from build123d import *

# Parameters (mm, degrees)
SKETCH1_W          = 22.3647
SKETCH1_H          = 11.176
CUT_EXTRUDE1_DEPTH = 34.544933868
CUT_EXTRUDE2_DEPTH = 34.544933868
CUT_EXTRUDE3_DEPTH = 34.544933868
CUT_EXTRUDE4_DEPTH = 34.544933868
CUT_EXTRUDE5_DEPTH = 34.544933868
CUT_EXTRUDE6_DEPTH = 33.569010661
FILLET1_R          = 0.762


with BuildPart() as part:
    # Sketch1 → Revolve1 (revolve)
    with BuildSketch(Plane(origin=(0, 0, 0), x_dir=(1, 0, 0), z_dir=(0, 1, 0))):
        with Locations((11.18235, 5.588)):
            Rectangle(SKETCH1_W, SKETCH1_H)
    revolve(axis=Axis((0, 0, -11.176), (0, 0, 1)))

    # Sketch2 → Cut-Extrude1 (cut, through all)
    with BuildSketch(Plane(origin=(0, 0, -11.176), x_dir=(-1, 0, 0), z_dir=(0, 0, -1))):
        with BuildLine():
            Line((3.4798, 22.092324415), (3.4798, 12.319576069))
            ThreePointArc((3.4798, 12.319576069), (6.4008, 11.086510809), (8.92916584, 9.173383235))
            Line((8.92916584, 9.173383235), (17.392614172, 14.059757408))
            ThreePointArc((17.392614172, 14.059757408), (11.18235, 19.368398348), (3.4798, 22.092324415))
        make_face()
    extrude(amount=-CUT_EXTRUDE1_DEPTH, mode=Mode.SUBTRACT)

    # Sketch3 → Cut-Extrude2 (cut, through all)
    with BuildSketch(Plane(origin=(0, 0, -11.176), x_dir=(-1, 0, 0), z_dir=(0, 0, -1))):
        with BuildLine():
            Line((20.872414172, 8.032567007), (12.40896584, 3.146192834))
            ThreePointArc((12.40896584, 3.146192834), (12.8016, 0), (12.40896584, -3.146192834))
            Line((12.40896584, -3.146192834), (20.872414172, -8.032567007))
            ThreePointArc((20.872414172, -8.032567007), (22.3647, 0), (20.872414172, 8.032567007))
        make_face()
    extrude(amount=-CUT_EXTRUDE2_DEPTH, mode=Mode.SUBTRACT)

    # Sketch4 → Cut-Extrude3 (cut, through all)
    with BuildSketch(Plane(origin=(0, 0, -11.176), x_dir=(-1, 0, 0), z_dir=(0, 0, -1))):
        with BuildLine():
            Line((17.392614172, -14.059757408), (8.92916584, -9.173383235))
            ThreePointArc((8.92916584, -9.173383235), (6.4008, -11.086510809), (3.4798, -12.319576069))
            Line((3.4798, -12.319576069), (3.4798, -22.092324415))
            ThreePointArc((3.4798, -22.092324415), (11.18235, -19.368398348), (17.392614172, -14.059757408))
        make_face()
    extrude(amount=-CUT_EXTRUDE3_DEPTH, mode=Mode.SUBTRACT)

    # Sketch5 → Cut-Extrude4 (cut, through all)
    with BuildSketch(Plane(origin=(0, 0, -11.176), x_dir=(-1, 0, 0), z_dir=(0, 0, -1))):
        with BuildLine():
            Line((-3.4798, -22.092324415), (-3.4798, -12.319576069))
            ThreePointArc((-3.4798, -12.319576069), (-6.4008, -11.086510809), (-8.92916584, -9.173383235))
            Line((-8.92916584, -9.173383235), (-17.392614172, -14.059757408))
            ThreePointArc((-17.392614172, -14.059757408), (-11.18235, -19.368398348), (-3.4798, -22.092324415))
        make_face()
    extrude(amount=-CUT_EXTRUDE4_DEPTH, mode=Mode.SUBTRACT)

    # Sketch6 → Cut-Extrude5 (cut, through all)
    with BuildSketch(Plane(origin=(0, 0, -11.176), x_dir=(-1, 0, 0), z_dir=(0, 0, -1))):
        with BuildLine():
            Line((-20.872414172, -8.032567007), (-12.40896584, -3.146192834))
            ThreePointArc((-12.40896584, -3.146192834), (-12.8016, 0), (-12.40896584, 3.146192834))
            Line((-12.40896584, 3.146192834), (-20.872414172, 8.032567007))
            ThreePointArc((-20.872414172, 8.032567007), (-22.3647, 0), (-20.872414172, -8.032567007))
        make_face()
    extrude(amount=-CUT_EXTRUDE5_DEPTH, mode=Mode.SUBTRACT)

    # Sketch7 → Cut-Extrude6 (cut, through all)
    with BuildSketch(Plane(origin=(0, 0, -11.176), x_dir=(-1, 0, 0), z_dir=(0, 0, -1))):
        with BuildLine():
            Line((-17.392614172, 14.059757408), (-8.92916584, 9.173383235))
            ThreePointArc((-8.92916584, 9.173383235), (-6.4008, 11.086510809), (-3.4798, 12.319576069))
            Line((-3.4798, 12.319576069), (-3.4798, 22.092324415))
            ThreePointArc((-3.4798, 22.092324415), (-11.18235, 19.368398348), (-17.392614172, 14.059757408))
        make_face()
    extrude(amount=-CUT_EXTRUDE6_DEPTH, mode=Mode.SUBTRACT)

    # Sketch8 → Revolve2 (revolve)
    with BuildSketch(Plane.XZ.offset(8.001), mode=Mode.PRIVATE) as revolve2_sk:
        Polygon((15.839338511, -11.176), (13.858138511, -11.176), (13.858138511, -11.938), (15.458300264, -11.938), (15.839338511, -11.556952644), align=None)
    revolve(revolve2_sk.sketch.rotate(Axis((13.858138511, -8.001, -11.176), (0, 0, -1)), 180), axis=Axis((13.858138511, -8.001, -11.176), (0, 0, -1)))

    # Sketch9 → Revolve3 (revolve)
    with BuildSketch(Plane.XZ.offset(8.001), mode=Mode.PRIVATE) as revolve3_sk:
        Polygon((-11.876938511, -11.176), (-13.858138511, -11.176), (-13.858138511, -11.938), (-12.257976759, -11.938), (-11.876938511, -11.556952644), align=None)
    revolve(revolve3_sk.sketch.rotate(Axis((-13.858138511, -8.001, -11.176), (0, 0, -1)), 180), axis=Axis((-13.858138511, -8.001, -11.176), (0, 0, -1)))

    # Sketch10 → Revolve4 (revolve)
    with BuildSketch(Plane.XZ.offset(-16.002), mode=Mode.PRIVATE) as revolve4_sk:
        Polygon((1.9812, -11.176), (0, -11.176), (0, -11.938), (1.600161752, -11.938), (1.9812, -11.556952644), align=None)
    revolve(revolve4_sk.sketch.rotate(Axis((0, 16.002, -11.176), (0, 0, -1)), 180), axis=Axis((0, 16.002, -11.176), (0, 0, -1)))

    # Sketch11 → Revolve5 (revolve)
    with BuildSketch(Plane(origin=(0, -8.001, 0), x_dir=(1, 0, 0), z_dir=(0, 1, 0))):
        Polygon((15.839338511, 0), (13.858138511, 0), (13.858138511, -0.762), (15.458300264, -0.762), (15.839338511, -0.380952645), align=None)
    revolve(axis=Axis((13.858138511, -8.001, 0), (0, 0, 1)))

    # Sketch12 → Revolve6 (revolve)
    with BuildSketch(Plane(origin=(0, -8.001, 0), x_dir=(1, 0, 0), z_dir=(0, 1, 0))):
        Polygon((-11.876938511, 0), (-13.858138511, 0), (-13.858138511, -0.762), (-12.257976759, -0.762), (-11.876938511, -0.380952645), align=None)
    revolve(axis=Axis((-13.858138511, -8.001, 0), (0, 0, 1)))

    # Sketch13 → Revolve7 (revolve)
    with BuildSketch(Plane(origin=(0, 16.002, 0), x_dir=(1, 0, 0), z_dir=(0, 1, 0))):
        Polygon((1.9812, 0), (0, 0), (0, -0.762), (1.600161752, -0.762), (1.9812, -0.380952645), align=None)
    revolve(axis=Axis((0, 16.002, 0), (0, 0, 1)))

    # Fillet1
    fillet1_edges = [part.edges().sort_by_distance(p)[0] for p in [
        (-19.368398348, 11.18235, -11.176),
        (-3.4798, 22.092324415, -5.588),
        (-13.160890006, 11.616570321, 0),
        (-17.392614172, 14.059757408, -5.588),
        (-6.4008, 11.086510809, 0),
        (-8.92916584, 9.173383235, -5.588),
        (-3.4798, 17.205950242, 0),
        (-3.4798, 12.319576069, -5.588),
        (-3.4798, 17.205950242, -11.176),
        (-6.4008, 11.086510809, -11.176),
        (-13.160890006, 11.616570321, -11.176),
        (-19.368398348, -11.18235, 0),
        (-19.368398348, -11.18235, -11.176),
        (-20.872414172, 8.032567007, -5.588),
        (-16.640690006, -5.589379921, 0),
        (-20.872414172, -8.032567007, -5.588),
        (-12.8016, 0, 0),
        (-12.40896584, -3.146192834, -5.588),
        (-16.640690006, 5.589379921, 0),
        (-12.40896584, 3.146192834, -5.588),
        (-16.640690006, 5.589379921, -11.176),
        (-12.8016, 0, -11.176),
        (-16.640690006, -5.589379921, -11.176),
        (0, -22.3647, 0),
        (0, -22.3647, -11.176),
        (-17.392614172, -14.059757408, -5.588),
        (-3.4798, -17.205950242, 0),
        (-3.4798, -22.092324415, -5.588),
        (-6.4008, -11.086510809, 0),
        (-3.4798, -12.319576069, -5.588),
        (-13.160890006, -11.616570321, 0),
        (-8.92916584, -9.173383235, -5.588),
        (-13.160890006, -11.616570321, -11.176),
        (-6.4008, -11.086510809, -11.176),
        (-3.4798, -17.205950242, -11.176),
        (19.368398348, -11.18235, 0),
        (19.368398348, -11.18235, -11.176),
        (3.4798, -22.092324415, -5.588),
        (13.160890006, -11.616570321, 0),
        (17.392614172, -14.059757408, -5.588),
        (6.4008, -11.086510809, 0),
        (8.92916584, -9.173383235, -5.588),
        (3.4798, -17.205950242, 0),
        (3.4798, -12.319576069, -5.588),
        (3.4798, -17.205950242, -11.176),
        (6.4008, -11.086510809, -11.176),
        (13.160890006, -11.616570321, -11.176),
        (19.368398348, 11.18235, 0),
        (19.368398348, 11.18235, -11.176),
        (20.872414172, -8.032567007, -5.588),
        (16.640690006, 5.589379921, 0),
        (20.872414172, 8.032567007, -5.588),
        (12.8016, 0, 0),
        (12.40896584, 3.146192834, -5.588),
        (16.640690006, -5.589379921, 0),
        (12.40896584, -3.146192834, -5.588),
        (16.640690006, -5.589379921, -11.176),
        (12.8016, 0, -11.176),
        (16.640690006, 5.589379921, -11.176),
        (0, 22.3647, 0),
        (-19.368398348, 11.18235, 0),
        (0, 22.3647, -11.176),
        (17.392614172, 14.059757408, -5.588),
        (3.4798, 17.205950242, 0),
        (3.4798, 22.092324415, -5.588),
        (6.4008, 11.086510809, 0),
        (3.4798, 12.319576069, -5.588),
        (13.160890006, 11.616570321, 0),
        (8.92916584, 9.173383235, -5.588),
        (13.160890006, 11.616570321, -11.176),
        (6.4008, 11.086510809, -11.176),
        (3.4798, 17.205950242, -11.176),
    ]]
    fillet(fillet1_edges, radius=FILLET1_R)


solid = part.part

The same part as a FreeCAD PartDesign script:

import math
import FreeCAD as App
import Part
import Sketcher
Q = App.Units.Quantity


def edges_at(feature, points):
    """Names of the edges that pass closest to the given points."""
    edges = feature.Shape.Edges
    near = lambda p: min(range(len(edges)), key=lambda i: edges[i].distToShape(Part.Vertex(*p))[0])
    return sorted({f"Edge{near(p) + 1}" for p in points})


def add_polygon(sketch, points):
    """Adds a closed chain of lines whose ends are joined by coincident constraints."""
    first, n = sketch.GeometryCount, len(points)
    for a, b in zip(points, points[1:] + points[:1]):
        sketch.addGeometry(Part.LineSegment(App.Vector(*a, 0), App.Vector(*b, 0)), False)
    for i in range(n):
        sketch.addConstraint(Sketcher.Constraint("Coincident", first + i, 2, first + (i + 1) % n, 1))

doc = App.newDocument("Part")
body = doc.addObject("PartDesign::Body", "Body")

sketch1 = doc.addObject("Sketcher::SketchObject", "Sketch")
body.addObject(sketch1)
sketch1.AttachmentSupport = (doc.XZ_Plane, [""])
sketch1.MapMode = "FlatFace"
add_polygon(sketch1, [(0, -11), (0, 0), (22, 0), (22, -11)])
sketch1.addConstraint(Sketcher.Constraint("Vertical", 0))
sketch1.addConstraint(Sketcher.Constraint("Horizontal", 1))
sketch1.addConstraint(Sketcher.Constraint("Vertical", 2))
sketch1.addConstraint(Sketcher.Constraint("Horizontal", 3))
sketch1.addConstraint(Sketcher.Constraint("Coincident", 0, 2, -1, 1))
sketch1.addConstraint(Sketcher.Constraint("DistanceY", 0, 1, 0, 2, Q("0.44 in")))
sketch1.addConstraint(Sketcher.Constraint("DistanceX", 1, 1, 1, 2, Q("0.8805 in")))
revolution = doc.addObject("PartDesign::Revolution", "Revolution")
body.addObject(revolution)
revolution.Profile = sketch1
revolution.ReferenceAxis = (sketch1, ["V_Axis"])
revolution.Angle = 360

sketch2 = doc.addObject("Sketcher::SketchObject", "Sketch001")
body.addObject(sketch2)
sketch2.AttachmentSupport = (doc.XY_Plane, [""])
sketch2.MapMode = "FlatFace"
sketch2.AttachmentOffset = App.Placement(App.Vector(0, 0, -0.44 * 25.4), App.Rotation())
sketch2.addGeometry(Part.LineSegment(App.Vector(-3, 22, 0), App.Vector(-3, 12, 0)), False)
sketch2.addGeometry(Part.ArcOfCircle(Part.Circle(App.Vector(0, 0, 0), App.Vector(0, 0, 1), 13), math.radians(106), math.radians(134)), False)
sketch2.addGeometry(Part.LineSegment(App.Vector(-9, 9, 0), App.Vector(-17, 14, 0)), False)
sketch2.addGeometry(Part.ArcOfCircle(Part.Circle(App.Vector(0, 0, 0), App.Vector(0, 0, 1), 22), math.radians(99), math.radians(141)), False)
sketch2.addConstraint(Sketcher.Constraint("Coincident", 0, 2, 1, 1))
sketch2.addConstraint(Sketcher.Constraint("Coincident", 1, 2, 2, 1))
sketch2.addConstraint(Sketcher.Constraint("Coincident", 2, 2, 3, 2))
sketch2.addConstraint(Sketcher.Constraint("Coincident", 3, 1, 0, 1))
sketch2.addConstraint(Sketcher.Constraint("Vertical", 0))
sketch2.addConstraint(Sketcher.Constraint("Coincident", 1, 3, -1, 1))
sketch2.addConstraint(Sketcher.Constraint("Coincident", 3, 3, -1, 1))
sketch2.addConstraint(Sketcher.Constraint("Angle", 2, Q("150 deg")))
sketch2.addConstraint(Sketcher.Constraint("Radius", 1, Q("0.504 in")))
sketch2.addConstraint(Sketcher.Constraint("Radius", 3, Q("0.8805 in")))
sketch2.addConstraint(Sketcher.Constraint("DistanceX", 0, 2, -1, 1, Q("0.137 in")))
sketch2.addConstraint(Sketcher.Constraint("Distance", 2, 9.772748))
pocket1 = doc.addObject("PartDesign::Pocket", "Pocket")
body.addObject(pocket1)
pocket1.Profile = sketch2
pocket1.Type = "ThroughAll"
pocket1.Reversed = True

sketch3 = doc.addObject("Sketcher::SketchObject", "Sketch002")
body.addObject(sketch3)
sketch3.AttachmentSupport = (doc.XY_Plane, [""])
sketch3.MapMode = "FlatFace"
sketch3.AttachmentOffset = App.Placement(App.Vector(0, 0, -0.44 * 25.4), App.Rotation())
sketch3.addGeometry(Part.LineSegment(App.Vector(-21, 8, 0), App.Vector(-12, 3, 0)), False)
sketch3.addGeometry(Part.ArcOfCircle(Part.Circle(App.Vector(0, 0, 0), App.Vector(0, 0, 1), 13), math.radians(166), math.radians(194)), False)
sketch3.addGeometry(Part.LineSegment(App.Vector(-12, -3, 0), App.Vector(-21, -8, 0)), False)
sketch3.addGeometry(Part.ArcOfCircle(Part.Circle(App.Vector(0, 0, 0), App.Vector(0, 0, 1), 22), math.radians(159), math.radians(201)), False)
sketch3.addConstraint(Sketcher.Constraint("Coincident", 0, 2, 1, 1))
sketch3.addConstraint(Sketcher.Constraint("Coincident", 1, 2, 2, 1))
sketch3.addConstraint(Sketcher.Constraint("Coincident", 2, 2, 3, 2))
sketch3.addConstraint(Sketcher.Constraint("Coincident", 3, 1, 0, 1))
sketch3.addConstraint(Sketcher.Constraint("Coincident", 1, 3, -1, 1))
sketch3.addConstraint(Sketcher.Constraint("Coincident", 3, 3, -1, 1))
sketch3.addConstraint(Sketcher.Constraint("Vertical", 0, 2, 1, 2))
sketch3.addConstraint(Sketcher.Constraint("Vertical", 2, 2, 3, 1))
sketch3.addConstraint(Sketcher.Constraint("Angle", 0, Q("-30 deg")))
sketch3.addConstraint(Sketcher.Constraint("Radius", 1, Q("0.504 in")))
sketch3.addConstraint(Sketcher.Constraint("Radius", 3, Q("0.8805 in")))
sketch3.addConstraint(Sketcher.Constraint("Distance", 0, 9.772748))
pocket2 = doc.addObject("PartDesign::Pocket", "Pocket001")
body.addObject(pocket2)
pocket2.Profile = sketch3
pocket2.Type = "ThroughAll"
pocket2.Reversed = True

sketch4 = doc.addObject("Sketcher::SketchObject", "Sketch003")
body.addObject(sketch4)
sketch4.AttachmentSupport = (doc.XY_Plane, [""])
sketch4.MapMode = "FlatFace"
sketch4.AttachmentOffset = App.Placement(App.Vector(0, 0, -0.44 * 25.4), App.Rotation())
sketch4.addGeometry(Part.LineSegment(App.Vector(-17, -14, 0), App.Vector(-9, -9, 0)), False)
sketch4.addGeometry(Part.ArcOfCircle(Part.Circle(App.Vector(0, 0, 0), App.Vector(0, 0, 1), 13), math.radians(-134), math.radians(-106)), False)
sketch4.addGeometry(Part.LineSegment(App.Vector(-3, -12, 0), App.Vector(-3, -22, 0)), False)
sketch4.addGeometry(Part.ArcOfCircle(Part.Circle(App.Vector(0, 0, 0), App.Vector(0, 0, 1), 22), math.radians(-141), math.radians(-99)), False)
sketch4.addConstraint(Sketcher.Constraint("Coincident", 0, 2, 1, 1))
sketch4.addConstraint(Sketcher.Constraint("Coincident", 1, 2, 2, 1))
sketch4.addConstraint(Sketcher.Constraint("Coincident", 2, 2, 3, 2))
sketch4.addConstraint(Sketcher.Constraint("Coincident", 3, 1, 0, 1))
sketch4.addConstraint(Sketcher.Constraint("Vertical", 2))
sketch4.addConstraint(Sketcher.Constraint("Coincident", 1, 3, -1, 1))
sketch4.addConstraint(Sketcher.Constraint("Coincident", 3, 3, -1, 1))
sketch4.addConstraint(Sketcher.Constraint("Angle", 0, Q("30 deg")))
sketch4.addConstraint(Sketcher.Constraint("Radius", 1, Q("0.504 in")))
sketch4.addConstraint(Sketcher.Constraint("Radius", 3, Q("0.8805 in")))
sketch4.addConstraint(Sketcher.Constraint("DistanceX", 1, 2, -1, 1, Q("0.137 in")))
sketch4.addConstraint(Sketcher.Constraint("Distance", 0, 9.772748))
pocket3 = doc.addObject("PartDesign::Pocket", "Pocket002")
body.addObject(pocket3)
pocket3.Profile = sketch4
pocket3.Type = "ThroughAll"
pocket3.Reversed = True

sketch5 = doc.addObject("Sketcher::SketchObject", "Sketch004")
body.addObject(sketch5)
sketch5.AttachmentSupport = (doc.XY_Plane, [""])
sketch5.MapMode = "FlatFace"
sketch5.AttachmentOffset = App.Placement(App.Vector(0, 0, -0.44 * 25.4), App.Rotation())
sketch5.addGeometry(Part.LineSegment(App.Vector(3, -22, 0), App.Vector(3, -12, 0)), False)
sketch5.addGeometry(Part.ArcOfCircle(Part.Circle(App.Vector(0, 0, 0), App.Vector(0, 0, 1), 13), math.radians(-74), math.radians(-46)), False)
sketch5.addGeometry(Part.LineSegment(App.Vector(9, -9, 0), App.Vector(17, -14, 0)), False)
sketch5.addGeometry(Part.ArcOfCircle(Part.Circle(App.Vector(0, 0, 0), App.Vector(0, 0, 1), 22), math.radians(-81), math.radians(-39)), False)
sketch5.addConstraint(Sketcher.Constraint("Coincident", 0, 2, 1, 1))
sketch5.addConstraint(Sketcher.Constraint("Coincident", 1, 2, 2, 1))
sketch5.addConstraint(Sketcher.Constraint("Coincident", 2, 2, 3, 2))
sketch5.addConstraint(Sketcher.Constraint("Coincident", 3, 1, 0, 1))
sketch5.addConstraint(Sketcher.Constraint("Vertical", 0))
sketch5.addConstraint(Sketcher.Constraint("Coincident", 1, 3, -1, 1))
sketch5.addConstraint(Sketcher.Constraint("Coincident", 3, 3, -1, 1))
sketch5.addConstraint(Sketcher.Constraint("Angle", 2, Q("-30 deg")))
sketch5.addConstraint(Sketcher.Constraint("Radius", 1, Q("0.504 in")))
sketch5.addConstraint(Sketcher.Constraint("Radius", 3, Q("0.8805 in")))
sketch5.addConstraint(Sketcher.Constraint("DistanceX", -1, 1, 0, 2, Q("0.137 in")))
sketch5.addConstraint(Sketcher.Constraint("Distance", 2, 9.772748))
pocket4 = doc.addObject("PartDesign::Pocket", "Pocket003")
body.addObject(pocket4)
pocket4.Profile = sketch5
pocket4.Type = "ThroughAll"
pocket4.Reversed = True

sketch6 = doc.addObject("Sketcher::SketchObject", "Sketch005")
body.addObject(sketch6)
sketch6.AttachmentSupport = (doc.XY_Plane, [""])
sketch6.MapMode = "FlatFace"
sketch6.AttachmentOffset = App.Placement(App.Vector(0, 0, -0.44 * 25.4), App.Rotation())
sketch6.addGeometry(Part.LineSegment(App.Vector(21, -8, 0), App.Vector(12, -3, 0)), False)
sketch6.addGeometry(Part.ArcOfCircle(Part.Circle(App.Vector(0, 0, 0), App.Vector(0, 0, 1), 13), math.radians(-14), math.radians(14)), False)
sketch6.addGeometry(Part.LineSegment(App.Vector(12, 3, 0), App.Vector(21, 8, 0)), False)
sketch6.addGeometry(Part.ArcOfCircle(Part.Circle(App.Vector(0, 0, 0), App.Vector(0, 0, 1), 22), math.radians(-21), math.radians(21)), False)
sketch6.addConstraint(Sketcher.Constraint("Coincident", 0, 2, 1, 1))
sketch6.addConstraint(Sketcher.Constraint("Coincident", 1, 2, 2, 1))
sketch6.addConstraint(Sketcher.Constraint("Coincident", 2, 2, 3, 2))
sketch6.addConstraint(Sketcher.Constraint("Coincident", 3, 1, 0, 1))
sketch6.addConstraint(Sketcher.Constraint("Coincident", 1, 3, -1, 1))
sketch6.addConstraint(Sketcher.Constraint("Coincident", 3, 3, -1, 1))
sketch6.addConstraint(Sketcher.Constraint("Vertical", 0, 2, 1, 2))
sketch6.addConstraint(Sketcher.Constraint("Vertical", 2, 2, 3, 1))
sketch6.addConstraint(Sketcher.Constraint("Angle", 0, Q("150 deg")))
sketch6.addConstraint(Sketcher.Constraint("Radius", 1, Q("0.504 in")))
sketch6.addConstraint(Sketcher.Constraint("Radius", 3, Q("0.8805 in")))
sketch6.addConstraint(Sketcher.Constraint("Distance", 0, 9.772748))
pocket5 = doc.addObject("PartDesign::Pocket", "Pocket004")
body.addObject(pocket5)
pocket5.Profile = sketch6
pocket5.Type = "ThroughAll"
pocket5.Reversed = True

sketch7 = doc.addObject("Sketcher::SketchObject", "Sketch006")
body.addObject(sketch7)
sketch7.AttachmentSupport = (doc.XY_Plane, [""])
sketch7.MapMode = "FlatFace"
sketch7.AttachmentOffset = App.Placement(App.Vector(0, 0, -0.44 * 25.4), App.Rotation())
sketch7.addGeometry(Part.LineSegment(App.Vector(17, 14, 0), App.Vector(9, 9, 0)), False)
sketch7.addGeometry(Part.ArcOfCircle(Part.Circle(App.Vector(0, 0, 0), App.Vector(0, 0, 1), 13), math.radians(46), math.radians(74)), False)
sketch7.addGeometry(Part.LineSegment(App.Vector(3, 12, 0), App.Vector(3, 22, 0)), False)
sketch7.addGeometry(Part.ArcOfCircle(Part.Circle(App.Vector(0, 0, 0), App.Vector(0, 0, 1), 22), math.radians(39), math.radians(81)), False)
sketch7.addConstraint(Sketcher.Constraint("Coincident", 0, 2, 1, 1))
sketch7.addConstraint(Sketcher.Constraint("Coincident", 1, 2, 2, 1))
sketch7.addConstraint(Sketcher.Constraint("Coincident", 2, 2, 3, 2))
sketch7.addConstraint(Sketcher.Constraint("Coincident", 3, 1, 0, 1))
sketch7.addConstraint(Sketcher.Constraint("Vertical", 2))
sketch7.addConstraint(Sketcher.Constraint("Coincident", 1, 3, -1, 1))
sketch7.addConstraint(Sketcher.Constraint("Coincident", 3, 3, -1, 1))
sketch7.addConstraint(Sketcher.Constraint("Angle", 0, Q("-150 deg")))
sketch7.addConstraint(Sketcher.Constraint("Radius", 1, Q("0.504 in")))
sketch7.addConstraint(Sketcher.Constraint("Radius", 3, Q("0.8805 in")))
sketch7.addConstraint(Sketcher.Constraint("DistanceX", -1, 1, 1, 2, Q("0.137 in")))
sketch7.addConstraint(Sketcher.Constraint("Distance", 0, 9.772748))
pocket6 = doc.addObject("PartDesign::Pocket", "Pocket005")
body.addObject(pocket6)
pocket6.Profile = sketch7
pocket6.Type = "ThroughAll"
pocket6.Reversed = True

sketch8 = doc.addObject("Sketcher::SketchObject", "Sketch007")
body.addObject(sketch8)
sketch8.AttachmentSupport = (doc.XZ_Plane, [""])
sketch8.MapMode = "FlatFace"
sketch8.AttachmentOffset = App.Placement(App.Vector(0, 0, 0.315 * 25.4), App.Rotation())
add_polygon(sketch8, [(15.84, -11.18), (13.86, -11.18), (13.86, -11.94), (15.46, -11.94), (15.84, -11.56)])
sketch8.addGeometry(Part.LineSegment(App.Vector(13.86, -11.18, 0), App.Vector(13.86, -11.94, 0)), True)
sketch8.addConstraint(Sketcher.Constraint("Horizontal", 0))
sketch8.addConstraint(Sketcher.Constraint("Vertical", 1))
sketch8.addConstraint(Sketcher.Constraint("Horizontal", 2))
sketch8.addConstraint(Sketcher.Constraint("Vertical", 4))
sketch8.addConstraint(Sketcher.Constraint("Vertical", 5))
sketch8.addConstraint(Sketcher.Constraint("Coincident", 5, 1, 0, 2))
sketch8.addConstraint(Sketcher.Constraint("Horizontal", 2, 2, 5, 2))
sketch8.addConstraint(Sketcher.Constraint("DistanceY", 1, 2, 1, 1, Q("0.03 in")))
sketch8.addConstraint(Sketcher.Constraint("DistanceX", 0, 2, 0, 1, Q("0.078 in")))
sketch8.addConstraint(Sketcher.Constraint("DistanceY", 0, 2, -1, 1, Q("0.44 in")))
sketch8.addConstraint(Sketcher.Constraint("DistanceX", 2, 1, 2, 2, 1.600162))
sketch8.addConstraint(Sketcher.Constraint("DistanceX", -1, 1, 2, 2, 15.4583))
sketch8.addConstraint(Sketcher.Constraint("DistanceY", 4, 1, 4, 2, 0.380953))
revolution2 = doc.addObject("PartDesign::Revolution", "Revolution001")
body.addObject(revolution2)
revolution2.Profile = sketch8
revolution2.ReferenceAxis = (sketch8, ["Axis0"])
revolution2.Angle = 360

sketch9 = doc.addObject("Sketcher::SketchObject", "Sketch008")
body.addObject(sketch9)
sketch9.AttachmentSupport = (doc.XZ_Plane, [""])
sketch9.MapMode = "FlatFace"
sketch9.AttachmentOffset = App.Placement(App.Vector(0, 0, 0.315 * 25.4), App.Rotation())
add_polygon(sketch9, [(-11.88, -11.18), (-13.86, -11.18), (-13.86, -11.94), (-12.26, -11.94), (-11.88, -11.56)])
sketch9.addGeometry(Part.LineSegment(App.Vector(-13.86, -11.18, 0), App.Vector(-13.86, -11.94, 0)), True)
sketch9.addConstraint(Sketcher.Constraint("Horizontal", 0))
sketch9.addConstraint(Sketcher.Constraint("Vertical", 1))
sketch9.addConstraint(Sketcher.Constraint("Horizontal", 2))
sketch9.addConstraint(Sketcher.Constraint("Vertical", 4))
sketch9.addConstraint(Sketcher.Constraint("Vertical", 5))
sketch9.addConstraint(Sketcher.Constraint("Coincident", 5, 1, 0, 2))
sketch9.addConstraint(Sketcher.Constraint("Horizontal", 2, 2, 5, 2))
sketch9.addConstraint(Sketcher.Constraint("DistanceY", 1, 2, 1, 1, Q("0.03 in")))
sketch9.addConstraint(Sketcher.Constraint("DistanceX", 0, 2, 0, 1, Q("0.078 in")))
sketch9.addConstraint(Sketcher.Constraint("DistanceY", 0, 2, -1, 1, Q("0.44 in")))
sketch9.addConstraint(Sketcher.Constraint("DistanceX", 2, 1, 2, 2, 1.600162))
sketch9.addConstraint(Sketcher.Constraint("DistanceY", 4, 1, 4, 2, 0.380953))
sketch9.addConstraint(Sketcher.Constraint("DistanceX", 0, 2, -1, 1, 13.858139))
revolution3 = doc.addObject("PartDesign::Revolution", "Revolution002")
body.addObject(revolution3)
revolution3.Profile = sketch9
revolution3.ReferenceAxis = (sketch9, ["Axis0"])
revolution3.Angle = 360

sketch10 = doc.addObject("Sketcher::SketchObject", "Sketch009")
body.addObject(sketch10)
sketch10.AttachmentSupport = (doc.XZ_Plane, [""])
sketch10.MapMode = "FlatFace"
sketch10.AttachmentOffset = App.Placement(App.Vector(0, 0, -0.63 * 25.4), App.Rotation())
add_polygon(sketch10, [(1.98, -11.18), (0, -11.18), (0, -11.94), (1.6, -11.94), (1.98, -11.56)])
sketch10.addConstraint(Sketcher.Constraint("Horizontal", 0))
sketch10.addConstraint(Sketcher.Constraint("Vertical", 1))
sketch10.addConstraint(Sketcher.Constraint("Horizontal", 2))
sketch10.addConstraint(Sketcher.Constraint("Vertical", 4))
sketch10.addConstraint(Sketcher.Constraint("PointOnObject", 0, 2, -2))
sketch10.addConstraint(Sketcher.Constraint("DistanceY", 1, 2, 1, 1, Q("0.03 in")))
sketch10.addConstraint(Sketcher.Constraint("DistanceX", 0, 2, 0, 1, Q("0.078 in")))
sketch10.addConstraint(Sketcher.Constraint("DistanceY", 0, 2, -1, 1, Q("0.44 in")))
sketch10.addConstraint(Sketcher.Constraint("DistanceX", 2, 1, 2, 2, 1.600162))
sketch10.addConstraint(Sketcher.Constraint("DistanceY", 4, 1, 4, 2, 0.380953))
revolution4 = doc.addObject("PartDesign::Revolution", "Revolution003")
body.addObject(revolution4)
revolution4.Profile = sketch10
revolution4.ReferenceAxis = (sketch10, ["V_Axis"])
revolution4.Angle = 360

sketch11 = doc.addObject("Sketcher::SketchObject", "Sketch010")
body.addObject(sketch11)
sketch11.AttachmentSupport = (doc.XZ_Plane, [""])
sketch11.MapMode = "FlatFace"
sketch11.AttachmentOffset = App.Placement(App.Vector(0, 0, 0.315 * 25.4), App.Rotation())
add_polygon(sketch11, [(15.84, 0), (13.86, 0), (13.86, 0.76), (15.46, 0.76), (15.84, 0.38)])
sketch11.addGeometry(Part.LineSegment(App.Vector(13.86, 0, 0), App.Vector(13.86, 0.76, 0)), True)
sketch11.addConstraint(Sketcher.Constraint("Horizontal", 0))
sketch11.addConstraint(Sketcher.Constraint("Vertical", 1))
sketch11.addConstraint(Sketcher.Constraint("Horizontal", 2))
sketch11.addConstraint(Sketcher.Constraint("Vertical", 4))
sketch11.addConstraint(Sketcher.Constraint("Vertical", 5))
sketch11.addConstraint(Sketcher.Constraint("Coincident", 5, 1, 0, 2))
sketch11.addConstraint(Sketcher.Constraint("PointOnObject", 0, 2, -1))
sketch11.addConstraint(Sketcher.Constraint("Horizontal", 2, 2, 5, 2))
sketch11.addConstraint(Sketcher.Constraint("DistanceY", 1, 1, 1, 2, Q("0.03 in")))
sketch11.addConstraint(Sketcher.Constraint("DistanceX", 0, 2, 0, 1, Q("0.078 in")))
sketch11.addConstraint(Sketcher.Constraint("DistanceX", 2, 1, 2, 2, 1.600162))
sketch11.addConstraint(Sketcher.Constraint("DistanceX", -1, 1, 2, 2, 15.4583))
sketch11.addConstraint(Sketcher.Constraint("DistanceY", 4, 2, 4, 1, 0.380953))
revolution5 = doc.addObject("PartDesign::Revolution", "Revolution004")
body.addObject(revolution5)
revolution5.Profile = sketch11
revolution5.ReferenceAxis = (sketch11, ["Axis0"])
revolution5.Angle = 360

sketch12 = doc.addObject("Sketcher::SketchObject", "Sketch011")
body.addObject(sketch12)
sketch12.AttachmentSupport = (doc.XZ_Plane, [""])
sketch12.MapMode = "FlatFace"
sketch12.AttachmentOffset = App.Placement(App.Vector(0, 0, 0.315 * 25.4), App.Rotation())
add_polygon(sketch12, [(-11.88, 0), (-13.86, 0), (-13.86, 0.76), (-12.26, 0.76), (-11.88, 0.38)])
sketch12.addGeometry(Part.LineSegment(App.Vector(-13.86, 0, 0), App.Vector(-13.86, 0.76, 0)), True)
sketch12.addConstraint(Sketcher.Constraint("Horizontal", 0))
sketch12.addConstraint(Sketcher.Constraint("Vertical", 1))
sketch12.addConstraint(Sketcher.Constraint("Horizontal", 2))
sketch12.addConstraint(Sketcher.Constraint("Vertical", 4))
sketch12.addConstraint(Sketcher.Constraint("Vertical", 5))
sketch12.addConstraint(Sketcher.Constraint("Coincident", 5, 1, 0, 2))
sketch12.addConstraint(Sketcher.Constraint("PointOnObject", 0, 2, -1))
sketch12.addConstraint(Sketcher.Constraint("Horizontal", 2, 2, 5, 2))
sketch12.addConstraint(Sketcher.Constraint("DistanceY", 1, 1, 1, 2, Q("0.03 in")))
sketch12.addConstraint(Sketcher.Constraint("DistanceX", 0, 2, 0, 1, Q("0.078 in")))
sketch12.addConstraint(Sketcher.Constraint("DistanceX", 2, 1, 2, 2, 1.600162))
sketch12.addConstraint(Sketcher.Constraint("DistanceY", 4, 2, 4, 1, 0.380953))
sketch12.addConstraint(Sketcher.Constraint("DistanceX", 0, 2, -1, 1, 13.858139))
revolution6 = doc.addObject("PartDesign::Revolution", "Revolution005")
body.addObject(revolution6)
revolution6.Profile = sketch12
revolution6.ReferenceAxis = (sketch12, ["Axis0"])
revolution6.Angle = 360

sketch13 = doc.addObject("Sketcher::SketchObject", "Sketch012")
body.addObject(sketch13)
sketch13.AttachmentSupport = (doc.XZ_Plane, [""])
sketch13.MapMode = "FlatFace"
sketch13.AttachmentOffset = App.Placement(App.Vector(0, 0, -0.63 * 25.4), App.Rotation())
add_polygon(sketch13, [(1.98, 0), (0, 0), (0, 0.76), (1.6, 0.76), (1.98, 0.38)])
sketch13.addConstraint(Sketcher.Constraint("Horizontal", 0))
sketch13.addConstraint(Sketcher.Constraint("Vertical", 1))
sketch13.addConstraint(Sketcher.Constraint("Horizontal", 2))
sketch13.addConstraint(Sketcher.Constraint("Vertical", 4))
sketch13.addConstraint(Sketcher.Constraint("Coincident", 0, 2, -1, 1))
sketch13.addConstraint(Sketcher.Constraint("DistanceY", 1, 1, 1, 2, Q("0.03 in")))
sketch13.addConstraint(Sketcher.Constraint("DistanceX", 0, 2, 0, 1, Q("0.078 in")))
sketch13.addConstraint(Sketcher.Constraint("DistanceX", 2, 1, 2, 2, 1.600162))
sketch13.addConstraint(Sketcher.Constraint("DistanceY", 4, 2, 4, 1, 0.380953))
revolution7 = doc.addObject("PartDesign::Revolution", "Revolution006")
body.addObject(revolution7)
revolution7.Profile = sketch13
revolution7.ReferenceAxis = (sketch13, ["V_Axis"])
revolution7.Angle = 360
doc.recompute()

fillet = doc.addObject("PartDesign::Fillet", "Fillet")
body.addObject(fillet)
fillet.Base = (revolution7, edges_at(revolution7, [
    (-19.368, 11.182, -11.176),
    (-3.48, 22.092, -5.588),
    (-13.161, 11.617, 0),
    (-17.393, 14.06, -5.588),
    (-6.401, 11.087, 0),
    (-8.929, 9.173, -5.588),
    (-3.48, 17.206, 0),
    (-3.48, 12.32, -5.588),
    (-3.48, 17.206, -11.176),
    (-6.401, 11.087, -11.176),
    (-13.161, 11.617, -11.176),
    (-19.368, -11.182, 0),
    (-19.368, -11.182, -11.176),
    (-20.872, 8.033, -5.588),
    (-16.641, -5.589, 0),
    (-20.872, -8.033, -5.588),
    (-12.802, 0, 0),
    (-12.409, -3.146, -5.588),
    (-16.641, 5.589, 0),
    (-12.409, 3.146, -5.588),
    (-16.641, 5.589, -11.176),
    (-12.802, 0, -11.176),
    (-16.641, -5.589, -11.176),
    (0, -22.365, 0),
    (0, -22.365, -11.176),
    (-17.393, -14.06, -5.588),
    (-3.48, -17.206, 0),
    (-3.48, -22.092, -5.588),
    (-6.401, -11.087, 0),
    (-3.48, -12.32, -5.588),
    (-13.161, -11.617, 0),
    (-8.929, -9.173, -5.588),
    (-13.161, -11.617, -11.176),
    (-6.401, -11.087, -11.176),
    (-3.48, -17.206, -11.176),
    (19.368, -11.182, 0),
    (19.368, -11.182, -11.176),
    (3.48, -22.092, -5.588),
    (13.161, -11.617, 0),
    (17.393, -14.06, -5.588),
    (6.401, -11.087, 0),
    (8.929, -9.173, -5.588),
    (3.48, -17.206, 0),
    (3.48, -12.32, -5.588),
    (3.48, -17.206, -11.176),
    (6.401, -11.087, -11.176),
    (13.161, -11.617, -11.176),
    (19.368, 11.182, 0),
    (19.368, 11.182, -11.176),
    (20.872, -8.033, -5.588),
    (16.641, 5.589, 0),
    (20.872, 8.033, -5.588),
    (12.802, 0, 0),
    (12.409, 3.146, -5.588),
    (16.641, -5.589, 0),
    (12.409, -3.146, -5.588),
    (16.641, -5.589, -11.176),
    (12.802, 0, -11.176),
    (16.641, 5.589, -11.176),
    (0, 22.365, 0),
    (-19.368, 11.182, 0),
    (0, 22.365, -11.176),
    (17.393, 14.06, -5.588),
    (3.48, 17.206, 0),
    (3.48, 22.092, -5.588),
    (6.401, 11.087, 0),
    (3.48, 12.32, -5.588),
    (13.161, 11.617, 0),
    (8.929, 9.173, -5.588),
    (13.161, 11.617, -11.176),
    (6.401, 11.087, -11.176),
    (3.48, 17.206, -11.176),
]))
fillet.Radius = Q("0.03 in")

doc.recompute()
